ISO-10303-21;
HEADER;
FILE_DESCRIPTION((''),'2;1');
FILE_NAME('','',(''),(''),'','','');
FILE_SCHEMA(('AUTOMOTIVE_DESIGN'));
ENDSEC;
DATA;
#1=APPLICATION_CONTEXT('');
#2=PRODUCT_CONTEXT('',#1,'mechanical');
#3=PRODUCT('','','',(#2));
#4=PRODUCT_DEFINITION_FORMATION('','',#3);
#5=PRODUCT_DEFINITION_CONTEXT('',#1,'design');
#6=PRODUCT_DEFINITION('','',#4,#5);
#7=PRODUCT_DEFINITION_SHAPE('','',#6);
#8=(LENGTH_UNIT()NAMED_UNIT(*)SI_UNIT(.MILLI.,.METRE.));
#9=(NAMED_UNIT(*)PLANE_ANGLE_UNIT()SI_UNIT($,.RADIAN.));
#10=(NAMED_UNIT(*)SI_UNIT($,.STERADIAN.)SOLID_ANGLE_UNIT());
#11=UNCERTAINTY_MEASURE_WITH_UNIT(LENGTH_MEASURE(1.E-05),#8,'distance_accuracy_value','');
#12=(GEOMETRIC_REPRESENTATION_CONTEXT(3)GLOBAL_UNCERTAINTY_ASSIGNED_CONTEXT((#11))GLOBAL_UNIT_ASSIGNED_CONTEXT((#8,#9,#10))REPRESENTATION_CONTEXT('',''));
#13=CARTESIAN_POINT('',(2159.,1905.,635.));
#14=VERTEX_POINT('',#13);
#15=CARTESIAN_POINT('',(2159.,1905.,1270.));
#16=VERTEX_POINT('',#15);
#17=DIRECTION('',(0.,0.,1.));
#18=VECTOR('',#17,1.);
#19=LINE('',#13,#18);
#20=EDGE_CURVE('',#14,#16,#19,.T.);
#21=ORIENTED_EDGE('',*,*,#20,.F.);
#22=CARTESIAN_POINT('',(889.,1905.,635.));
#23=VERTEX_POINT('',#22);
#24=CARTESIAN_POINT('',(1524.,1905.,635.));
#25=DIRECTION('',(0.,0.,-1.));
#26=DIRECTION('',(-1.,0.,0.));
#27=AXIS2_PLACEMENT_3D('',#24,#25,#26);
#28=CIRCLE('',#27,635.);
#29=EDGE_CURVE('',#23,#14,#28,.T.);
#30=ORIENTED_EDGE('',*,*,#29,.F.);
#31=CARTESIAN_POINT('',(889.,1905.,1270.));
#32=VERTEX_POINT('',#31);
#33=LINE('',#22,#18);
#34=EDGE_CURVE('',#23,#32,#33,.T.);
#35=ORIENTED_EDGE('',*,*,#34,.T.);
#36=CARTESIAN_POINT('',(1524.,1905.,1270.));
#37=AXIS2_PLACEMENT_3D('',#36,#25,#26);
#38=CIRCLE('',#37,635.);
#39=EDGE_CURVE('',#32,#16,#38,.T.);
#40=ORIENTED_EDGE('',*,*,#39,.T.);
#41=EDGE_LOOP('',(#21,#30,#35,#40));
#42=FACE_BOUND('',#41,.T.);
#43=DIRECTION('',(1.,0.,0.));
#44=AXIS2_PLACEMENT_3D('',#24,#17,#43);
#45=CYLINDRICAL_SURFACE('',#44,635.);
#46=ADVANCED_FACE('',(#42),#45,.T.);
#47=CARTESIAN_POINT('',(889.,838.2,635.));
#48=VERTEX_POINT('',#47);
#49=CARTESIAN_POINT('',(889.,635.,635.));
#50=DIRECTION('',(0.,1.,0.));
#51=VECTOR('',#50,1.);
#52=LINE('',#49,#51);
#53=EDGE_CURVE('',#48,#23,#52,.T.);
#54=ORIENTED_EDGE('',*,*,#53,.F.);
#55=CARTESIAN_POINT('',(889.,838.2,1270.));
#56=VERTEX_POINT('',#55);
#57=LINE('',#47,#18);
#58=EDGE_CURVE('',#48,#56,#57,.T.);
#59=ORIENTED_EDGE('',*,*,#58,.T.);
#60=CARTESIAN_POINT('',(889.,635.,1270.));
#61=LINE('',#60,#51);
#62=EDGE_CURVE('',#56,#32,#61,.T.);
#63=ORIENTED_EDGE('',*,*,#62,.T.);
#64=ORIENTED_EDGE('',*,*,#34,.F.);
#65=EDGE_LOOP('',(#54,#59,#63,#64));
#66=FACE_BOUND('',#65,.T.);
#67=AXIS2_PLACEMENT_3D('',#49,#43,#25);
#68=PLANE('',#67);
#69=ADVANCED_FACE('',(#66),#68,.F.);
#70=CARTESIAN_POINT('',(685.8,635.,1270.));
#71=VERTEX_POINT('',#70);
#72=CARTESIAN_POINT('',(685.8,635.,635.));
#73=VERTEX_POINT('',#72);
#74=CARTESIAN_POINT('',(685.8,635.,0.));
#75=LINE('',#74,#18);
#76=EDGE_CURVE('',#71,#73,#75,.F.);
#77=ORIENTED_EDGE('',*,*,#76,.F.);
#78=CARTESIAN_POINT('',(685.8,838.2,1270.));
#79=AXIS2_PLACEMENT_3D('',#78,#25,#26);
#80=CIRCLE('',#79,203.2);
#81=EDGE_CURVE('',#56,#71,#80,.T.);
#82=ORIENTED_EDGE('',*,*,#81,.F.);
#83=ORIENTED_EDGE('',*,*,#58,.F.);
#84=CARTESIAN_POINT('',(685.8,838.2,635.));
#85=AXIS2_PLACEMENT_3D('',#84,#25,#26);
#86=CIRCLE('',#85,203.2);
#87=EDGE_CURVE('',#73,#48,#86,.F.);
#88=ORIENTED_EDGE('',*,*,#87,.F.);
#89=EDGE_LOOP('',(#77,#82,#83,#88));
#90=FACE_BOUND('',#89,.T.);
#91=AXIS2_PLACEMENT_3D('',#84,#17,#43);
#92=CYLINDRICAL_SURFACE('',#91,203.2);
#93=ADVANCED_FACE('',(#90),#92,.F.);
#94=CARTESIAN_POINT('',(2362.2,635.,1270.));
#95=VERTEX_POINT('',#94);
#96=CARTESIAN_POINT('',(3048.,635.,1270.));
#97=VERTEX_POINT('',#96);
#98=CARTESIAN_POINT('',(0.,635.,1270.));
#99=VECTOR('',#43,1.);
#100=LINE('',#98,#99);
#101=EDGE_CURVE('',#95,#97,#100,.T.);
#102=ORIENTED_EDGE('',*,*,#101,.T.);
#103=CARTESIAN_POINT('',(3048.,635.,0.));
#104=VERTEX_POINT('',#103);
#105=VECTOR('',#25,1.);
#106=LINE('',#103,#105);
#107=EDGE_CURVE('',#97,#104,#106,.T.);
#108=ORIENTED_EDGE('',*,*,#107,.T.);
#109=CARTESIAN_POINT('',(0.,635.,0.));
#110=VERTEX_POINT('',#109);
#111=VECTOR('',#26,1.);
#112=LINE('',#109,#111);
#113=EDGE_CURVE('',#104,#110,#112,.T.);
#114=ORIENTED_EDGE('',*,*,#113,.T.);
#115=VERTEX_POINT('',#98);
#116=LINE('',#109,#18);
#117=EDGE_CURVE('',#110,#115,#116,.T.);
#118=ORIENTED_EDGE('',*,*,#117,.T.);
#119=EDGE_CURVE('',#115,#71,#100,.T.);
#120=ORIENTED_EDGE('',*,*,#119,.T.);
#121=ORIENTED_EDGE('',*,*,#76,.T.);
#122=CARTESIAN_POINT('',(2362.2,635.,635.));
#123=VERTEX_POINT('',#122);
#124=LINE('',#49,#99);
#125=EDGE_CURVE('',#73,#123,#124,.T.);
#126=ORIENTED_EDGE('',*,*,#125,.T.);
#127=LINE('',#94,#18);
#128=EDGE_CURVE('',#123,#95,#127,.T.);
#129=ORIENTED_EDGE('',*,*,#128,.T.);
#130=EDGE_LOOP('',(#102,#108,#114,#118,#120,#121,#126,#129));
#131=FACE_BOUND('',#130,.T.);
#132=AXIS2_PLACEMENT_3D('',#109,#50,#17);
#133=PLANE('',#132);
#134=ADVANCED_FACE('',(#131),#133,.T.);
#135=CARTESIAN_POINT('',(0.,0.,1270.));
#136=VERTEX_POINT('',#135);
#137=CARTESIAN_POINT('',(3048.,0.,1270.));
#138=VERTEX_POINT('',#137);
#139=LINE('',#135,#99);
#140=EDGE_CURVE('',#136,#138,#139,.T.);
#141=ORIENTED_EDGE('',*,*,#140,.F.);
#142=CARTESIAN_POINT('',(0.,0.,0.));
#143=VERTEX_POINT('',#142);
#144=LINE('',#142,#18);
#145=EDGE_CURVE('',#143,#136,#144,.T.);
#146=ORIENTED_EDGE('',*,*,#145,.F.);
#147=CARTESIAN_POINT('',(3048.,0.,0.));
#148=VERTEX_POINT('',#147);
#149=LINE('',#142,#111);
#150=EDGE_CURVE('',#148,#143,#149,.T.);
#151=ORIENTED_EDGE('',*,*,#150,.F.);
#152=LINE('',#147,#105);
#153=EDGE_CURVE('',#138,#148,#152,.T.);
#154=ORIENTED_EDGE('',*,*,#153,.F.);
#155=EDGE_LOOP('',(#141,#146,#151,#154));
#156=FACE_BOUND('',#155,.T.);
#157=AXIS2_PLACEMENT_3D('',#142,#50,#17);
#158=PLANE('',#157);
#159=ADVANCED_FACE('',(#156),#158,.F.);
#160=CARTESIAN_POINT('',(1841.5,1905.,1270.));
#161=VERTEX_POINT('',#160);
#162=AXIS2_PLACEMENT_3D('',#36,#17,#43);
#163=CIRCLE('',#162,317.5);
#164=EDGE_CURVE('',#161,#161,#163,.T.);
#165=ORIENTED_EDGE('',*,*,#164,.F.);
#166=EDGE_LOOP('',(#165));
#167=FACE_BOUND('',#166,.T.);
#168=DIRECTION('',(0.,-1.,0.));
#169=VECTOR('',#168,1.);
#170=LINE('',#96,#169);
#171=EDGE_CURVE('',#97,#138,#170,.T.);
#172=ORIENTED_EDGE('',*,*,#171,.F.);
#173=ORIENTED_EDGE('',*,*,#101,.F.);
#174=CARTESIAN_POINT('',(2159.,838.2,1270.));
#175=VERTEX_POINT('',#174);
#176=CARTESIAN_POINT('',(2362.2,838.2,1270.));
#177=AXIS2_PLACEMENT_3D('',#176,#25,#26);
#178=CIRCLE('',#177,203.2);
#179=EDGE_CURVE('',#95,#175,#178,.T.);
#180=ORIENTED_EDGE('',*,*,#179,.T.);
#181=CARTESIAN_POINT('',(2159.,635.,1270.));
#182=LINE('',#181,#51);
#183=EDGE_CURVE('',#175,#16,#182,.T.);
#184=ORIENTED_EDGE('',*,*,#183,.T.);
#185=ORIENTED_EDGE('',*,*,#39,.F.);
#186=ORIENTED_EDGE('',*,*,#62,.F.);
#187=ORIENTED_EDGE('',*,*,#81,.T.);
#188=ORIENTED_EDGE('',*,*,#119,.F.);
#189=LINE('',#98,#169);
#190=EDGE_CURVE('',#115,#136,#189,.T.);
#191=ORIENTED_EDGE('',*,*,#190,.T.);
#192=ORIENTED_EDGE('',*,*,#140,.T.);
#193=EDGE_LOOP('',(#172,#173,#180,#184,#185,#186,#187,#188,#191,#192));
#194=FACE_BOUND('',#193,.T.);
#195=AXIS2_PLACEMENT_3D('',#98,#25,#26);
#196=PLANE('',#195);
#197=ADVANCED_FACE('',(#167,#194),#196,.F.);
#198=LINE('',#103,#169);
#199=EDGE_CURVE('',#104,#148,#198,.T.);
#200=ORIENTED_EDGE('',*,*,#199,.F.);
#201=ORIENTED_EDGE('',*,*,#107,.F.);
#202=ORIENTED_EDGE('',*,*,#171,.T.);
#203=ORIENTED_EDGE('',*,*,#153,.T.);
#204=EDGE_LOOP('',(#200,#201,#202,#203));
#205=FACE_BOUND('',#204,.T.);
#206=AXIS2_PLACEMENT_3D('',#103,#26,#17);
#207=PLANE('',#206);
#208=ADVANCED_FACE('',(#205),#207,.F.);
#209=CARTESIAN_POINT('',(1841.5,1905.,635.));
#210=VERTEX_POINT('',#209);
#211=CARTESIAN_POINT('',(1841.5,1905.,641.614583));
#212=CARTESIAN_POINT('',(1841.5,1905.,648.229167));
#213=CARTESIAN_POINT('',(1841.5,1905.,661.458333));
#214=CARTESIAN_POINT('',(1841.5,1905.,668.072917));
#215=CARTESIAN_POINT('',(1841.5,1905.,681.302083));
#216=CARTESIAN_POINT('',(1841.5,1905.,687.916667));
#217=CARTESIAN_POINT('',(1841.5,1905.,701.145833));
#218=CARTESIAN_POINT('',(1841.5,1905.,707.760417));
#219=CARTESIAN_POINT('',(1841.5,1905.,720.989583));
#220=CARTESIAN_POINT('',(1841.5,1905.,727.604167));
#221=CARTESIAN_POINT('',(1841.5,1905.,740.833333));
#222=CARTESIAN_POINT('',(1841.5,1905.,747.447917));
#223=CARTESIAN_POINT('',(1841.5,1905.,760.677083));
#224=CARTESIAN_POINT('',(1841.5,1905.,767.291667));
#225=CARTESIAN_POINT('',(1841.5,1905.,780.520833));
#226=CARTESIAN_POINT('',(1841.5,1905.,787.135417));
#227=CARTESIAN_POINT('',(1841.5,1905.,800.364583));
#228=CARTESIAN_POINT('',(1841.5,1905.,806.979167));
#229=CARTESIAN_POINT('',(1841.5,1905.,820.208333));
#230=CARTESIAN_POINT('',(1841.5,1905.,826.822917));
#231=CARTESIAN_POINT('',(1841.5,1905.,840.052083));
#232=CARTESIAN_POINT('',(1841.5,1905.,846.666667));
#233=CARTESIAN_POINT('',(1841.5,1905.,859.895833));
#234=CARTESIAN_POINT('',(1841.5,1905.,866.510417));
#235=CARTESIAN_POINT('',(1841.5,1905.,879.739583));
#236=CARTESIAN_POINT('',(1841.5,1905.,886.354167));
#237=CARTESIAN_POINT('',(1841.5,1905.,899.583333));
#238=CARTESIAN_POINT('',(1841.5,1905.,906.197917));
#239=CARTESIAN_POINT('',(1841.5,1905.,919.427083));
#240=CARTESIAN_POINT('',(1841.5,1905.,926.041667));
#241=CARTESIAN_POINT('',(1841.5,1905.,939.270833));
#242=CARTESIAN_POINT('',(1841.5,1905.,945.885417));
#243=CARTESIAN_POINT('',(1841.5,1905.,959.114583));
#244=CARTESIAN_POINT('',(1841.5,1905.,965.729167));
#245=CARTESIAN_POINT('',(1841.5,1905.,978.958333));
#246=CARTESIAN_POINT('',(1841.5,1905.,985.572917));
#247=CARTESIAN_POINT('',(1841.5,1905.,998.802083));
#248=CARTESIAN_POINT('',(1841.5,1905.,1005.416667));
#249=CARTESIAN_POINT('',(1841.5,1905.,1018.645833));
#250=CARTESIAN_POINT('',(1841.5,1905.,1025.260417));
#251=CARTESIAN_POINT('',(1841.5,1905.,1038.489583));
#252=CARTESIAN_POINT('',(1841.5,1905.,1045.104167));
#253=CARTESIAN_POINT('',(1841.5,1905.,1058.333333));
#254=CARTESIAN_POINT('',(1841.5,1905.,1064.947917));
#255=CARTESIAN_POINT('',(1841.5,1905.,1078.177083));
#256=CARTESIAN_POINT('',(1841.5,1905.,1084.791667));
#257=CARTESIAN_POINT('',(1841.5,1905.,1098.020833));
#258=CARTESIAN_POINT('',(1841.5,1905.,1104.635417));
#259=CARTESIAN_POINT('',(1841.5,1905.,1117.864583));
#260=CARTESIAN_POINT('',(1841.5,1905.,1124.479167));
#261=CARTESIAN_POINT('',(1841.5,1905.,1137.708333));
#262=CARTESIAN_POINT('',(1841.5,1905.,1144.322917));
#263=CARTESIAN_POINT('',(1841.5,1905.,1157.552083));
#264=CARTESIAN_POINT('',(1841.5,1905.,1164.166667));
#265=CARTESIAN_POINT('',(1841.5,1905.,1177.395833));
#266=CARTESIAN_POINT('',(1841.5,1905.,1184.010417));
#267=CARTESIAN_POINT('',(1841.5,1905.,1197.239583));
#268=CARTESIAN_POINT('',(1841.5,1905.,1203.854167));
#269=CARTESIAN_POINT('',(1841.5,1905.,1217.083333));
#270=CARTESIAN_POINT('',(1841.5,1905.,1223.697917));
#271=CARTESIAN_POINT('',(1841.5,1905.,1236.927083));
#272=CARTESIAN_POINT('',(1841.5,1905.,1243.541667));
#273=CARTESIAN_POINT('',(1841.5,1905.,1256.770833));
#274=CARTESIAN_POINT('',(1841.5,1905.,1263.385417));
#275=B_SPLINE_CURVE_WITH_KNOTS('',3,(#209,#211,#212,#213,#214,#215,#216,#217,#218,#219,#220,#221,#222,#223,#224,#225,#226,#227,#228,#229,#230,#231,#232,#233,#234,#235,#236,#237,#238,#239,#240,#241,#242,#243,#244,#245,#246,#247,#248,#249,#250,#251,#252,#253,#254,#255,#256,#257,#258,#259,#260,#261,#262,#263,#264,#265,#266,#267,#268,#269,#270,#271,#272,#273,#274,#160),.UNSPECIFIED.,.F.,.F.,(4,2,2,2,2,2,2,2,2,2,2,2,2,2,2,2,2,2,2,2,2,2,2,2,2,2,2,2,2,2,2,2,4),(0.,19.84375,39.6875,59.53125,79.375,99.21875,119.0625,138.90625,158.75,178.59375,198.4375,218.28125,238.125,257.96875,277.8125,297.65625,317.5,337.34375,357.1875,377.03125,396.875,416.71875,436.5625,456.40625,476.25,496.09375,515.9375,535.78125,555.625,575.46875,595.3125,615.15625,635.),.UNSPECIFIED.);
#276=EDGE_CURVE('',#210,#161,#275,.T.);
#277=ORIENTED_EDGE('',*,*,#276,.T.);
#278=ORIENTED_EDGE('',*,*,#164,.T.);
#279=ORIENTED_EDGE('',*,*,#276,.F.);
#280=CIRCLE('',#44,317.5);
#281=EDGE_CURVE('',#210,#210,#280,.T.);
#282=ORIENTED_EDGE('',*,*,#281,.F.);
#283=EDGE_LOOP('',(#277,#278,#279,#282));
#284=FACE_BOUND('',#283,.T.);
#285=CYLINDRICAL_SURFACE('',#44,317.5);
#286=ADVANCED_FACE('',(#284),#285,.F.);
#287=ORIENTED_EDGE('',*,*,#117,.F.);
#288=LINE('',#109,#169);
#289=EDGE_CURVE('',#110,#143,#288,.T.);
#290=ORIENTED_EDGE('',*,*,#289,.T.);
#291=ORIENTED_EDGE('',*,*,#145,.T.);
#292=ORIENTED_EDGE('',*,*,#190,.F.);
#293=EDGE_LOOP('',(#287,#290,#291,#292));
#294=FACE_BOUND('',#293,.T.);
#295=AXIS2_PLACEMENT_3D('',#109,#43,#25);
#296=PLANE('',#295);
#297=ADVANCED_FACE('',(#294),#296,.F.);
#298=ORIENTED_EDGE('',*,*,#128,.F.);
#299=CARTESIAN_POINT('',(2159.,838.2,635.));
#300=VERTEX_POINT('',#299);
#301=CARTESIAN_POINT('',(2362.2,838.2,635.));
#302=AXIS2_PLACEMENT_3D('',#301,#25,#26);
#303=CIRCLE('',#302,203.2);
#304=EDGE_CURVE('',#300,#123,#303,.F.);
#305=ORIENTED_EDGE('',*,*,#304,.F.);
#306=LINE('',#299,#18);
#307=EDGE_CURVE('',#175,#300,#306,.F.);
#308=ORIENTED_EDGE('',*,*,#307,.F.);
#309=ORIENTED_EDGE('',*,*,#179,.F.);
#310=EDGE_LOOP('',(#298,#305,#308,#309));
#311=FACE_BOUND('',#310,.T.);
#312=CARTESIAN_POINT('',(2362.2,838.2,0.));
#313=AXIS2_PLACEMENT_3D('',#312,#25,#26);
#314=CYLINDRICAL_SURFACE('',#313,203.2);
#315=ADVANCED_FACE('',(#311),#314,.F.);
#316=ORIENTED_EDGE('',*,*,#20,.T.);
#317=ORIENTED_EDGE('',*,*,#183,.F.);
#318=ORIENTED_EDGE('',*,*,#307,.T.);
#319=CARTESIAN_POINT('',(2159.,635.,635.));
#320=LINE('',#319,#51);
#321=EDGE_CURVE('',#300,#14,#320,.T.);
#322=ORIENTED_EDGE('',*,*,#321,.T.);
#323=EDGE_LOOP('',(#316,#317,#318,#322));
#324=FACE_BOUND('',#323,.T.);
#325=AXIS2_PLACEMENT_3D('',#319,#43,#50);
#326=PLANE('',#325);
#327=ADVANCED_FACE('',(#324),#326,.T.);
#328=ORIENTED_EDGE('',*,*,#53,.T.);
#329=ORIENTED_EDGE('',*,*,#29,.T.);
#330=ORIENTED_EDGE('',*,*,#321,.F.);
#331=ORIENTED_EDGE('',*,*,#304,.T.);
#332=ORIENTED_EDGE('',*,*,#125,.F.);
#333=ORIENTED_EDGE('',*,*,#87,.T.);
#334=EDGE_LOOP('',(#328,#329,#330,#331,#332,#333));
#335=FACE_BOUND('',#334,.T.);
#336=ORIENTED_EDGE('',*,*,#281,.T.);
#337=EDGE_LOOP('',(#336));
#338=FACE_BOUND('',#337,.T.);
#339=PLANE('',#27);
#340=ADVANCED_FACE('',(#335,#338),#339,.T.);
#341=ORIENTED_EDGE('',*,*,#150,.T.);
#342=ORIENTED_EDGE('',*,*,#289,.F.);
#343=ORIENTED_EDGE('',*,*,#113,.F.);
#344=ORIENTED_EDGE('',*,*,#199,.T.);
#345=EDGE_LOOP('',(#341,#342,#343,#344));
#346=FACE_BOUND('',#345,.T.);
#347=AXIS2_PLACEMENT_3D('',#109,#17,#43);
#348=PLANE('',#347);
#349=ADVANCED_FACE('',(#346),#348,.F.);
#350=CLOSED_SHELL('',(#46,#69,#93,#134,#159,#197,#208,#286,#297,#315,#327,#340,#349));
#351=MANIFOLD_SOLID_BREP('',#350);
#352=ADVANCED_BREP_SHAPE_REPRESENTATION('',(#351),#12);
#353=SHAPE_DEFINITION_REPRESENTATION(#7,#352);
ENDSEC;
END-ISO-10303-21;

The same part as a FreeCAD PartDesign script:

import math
import FreeCAD as App
import Part
import Sketcher
from FreeCAD import Vector
Q = App.Units.Quantity


def edges_at(feature, points):
    """Names of the edges that pass closest to the given points."""
    edges = feature.Shape.Edges
    near = lambda p: min(range(len(edges)), key=lambda i: edges[i].distToShape(Part.Vertex(*p))[0])
    return sorted({f"Edge{near(p) + 1}" for p in points})

doc = App.newDocument("Part")
body = doc.addObject("PartDesign::Body", "Body")

sketch1 = doc.addObject("Sketcher::SketchObject", "Sketch")
body.addObject(sketch1)
sketch1.AttachmentSupport = (doc.XZ_Plane, [""])
sketch1.MapMode = "FlatFace"
sketch1.addGeometry([
    Part.LineSegment(Vector(0, 0, 0), Vector(0, 1270, 0)),
    Part.LineSegment(Vector(0, 1270, 0), Vector(3048, 1270, 0)),
    Part.LineSegment(Vector(3048, 1270, 0), Vector(3048, 0, 0)),
    Part.LineSegment(Vector(3048, 0, 0), Vector(0, 0, 0)),
], False)
sketch1.addConstraint([
    Sketcher.Constraint("Coincident", 0, 2, 1, 1),
    Sketcher.Constraint("Coincident", 1, 2, 2, 1),
    Sketcher.Constraint("Coincident", 2, 2, 3, 1),
    Sketcher.Constraint("Coincident", 3, 2, 0, 1),
    Sketcher.Constraint("Vertical", 0),
    Sketcher.Constraint("Horizontal", 1),
    Sketcher.Constraint("Vertical", 2),
    Sketcher.Constraint("Horizontal", 3),
    Sketcher.Constraint("Coincident", 3, 2, -1, 1),
    Sketcher.Constraint("DistanceX", 1, 1, 1, 2, Q("120 in")),
    Sketcher.Constraint("DistanceY", 0, 1, 0, 2, Q("50 in")),
])
pad1 = doc.addObject("PartDesign::Pad", "Pad")
body.addObject(pad1)
pad1.Profile = sketch1
pad1.Length = Q("25 in")
pad1.Reversed = True

sketch2 = doc.addObject("Sketcher::SketchObject", "Sketch001")
body.addObject(sketch2)
sketch2.AttachmentSupport = (doc.XY_Plane, [""])
sketch2.MapMode = "FlatFace"
sketch2.AttachmentOffset = App.Placement(Vector(0, 0, 50 * 25.4), App.Rotation())
sketch2.addGeometry([
    Part.LineSegment(Vector(889, 1905, 0), Vector(889, 635, 0)),
    Part.LineSegment(Vector(889, 635, 0), Vector(2159, 635, 0)),
    Part.LineSegment(Vector(2159, 635, 0), Vector(2159, 1905, 0)),
    Part.ArcOfCircle(Part.Circle(Vector(1524, 1905, 0), Vector(0, 0, 1), 635), math.radians(0), math.radians(180)),
    Part.Circle(Vector(1524, 1905, 0), Vector(0, 0, 1), 318),
], False)
sketch2.addConstraint([
    Sketcher.Constraint("Coincident", 0, 2, 1, 1),
    Sketcher.Constraint("Coincident", 1, 2, 2, 1),
    Sketcher.Constraint("Tangent", 2, 2, 3, 1),
    Sketcher.Constraint("Tangent", 3, 2, 0, 1),
    Sketcher.Constraint("Vertical", 0),
    Sketcher.Constraint("Horizontal", 1),
    Sketcher.Constraint("Vertical", 2),
    Sketcher.Constraint("Coincident", 4, 3, 3, 3),
    Sketcher.Constraint("Equal", 1, 0),
    Sketcher.Constraint("Diameter", 4, Q("25 in")),
    Sketcher.Constraint("Radius", 3, Q("25 in")),
    Sketcher.Constraint("DistanceX", -1, 1, 3, 3, Q("60 in")),
    Sketcher.Constraint("DistanceY", -1, 1, 3, 3, Q("75 in")),
])
pad2 = doc.addObject("PartDesign::Pad", "Pad001")
body.addObject(pad2)
pad2.Profile = sketch2
pad2.Length = Q("25 in")
pad2.Reversed = True
doc.recompute()

fillet = doc.addObject("PartDesign::Fillet", "Fillet")
body.addObject(fillet)
fillet.Base = (pad2, edges_at(pad2, [(889, 635, 952.5), (2159, 635, 952.5)]))
fillet.Radius = Q("8 in")

doc.recompute()
